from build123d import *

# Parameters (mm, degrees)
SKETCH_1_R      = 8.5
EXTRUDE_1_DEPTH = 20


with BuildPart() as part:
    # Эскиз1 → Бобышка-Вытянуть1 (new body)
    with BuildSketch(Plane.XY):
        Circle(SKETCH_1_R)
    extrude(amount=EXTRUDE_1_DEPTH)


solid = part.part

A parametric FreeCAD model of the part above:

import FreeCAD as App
import Part
import Sketcher
from FreeCAD import Vector
Q = App.Units.Quantity

doc = App.newDocument("Part")
body = doc.addObject("PartDesign::Body", "Body")

# Sketch on XY plane
sketch1 = doc.addObject("Sketcher::SketchObject", "Sketch")
body.addObject(sketch1)
sketch1.AttachmentSupport = (doc.XY_Plane, [""])
sketch1.MapMode = "FlatFace"
sketch1.addGeometry(Part.Circle(Vector(0, 0, 0), Vector(0, 0, 1), 8), False)
sketch1.addConstraint([
    Sketcher.Constraint("Coincident", 0, 3, -1, 1),
    Sketcher.Constraint("Diameter", 0, Q("17 mm")),
])
pad1 = doc.addObject("PartDesign::Pad", "Pad")
body.addObject(pad1)
pad1.Profile = sketch1
pad1.Length = 20

doc.recompute()
